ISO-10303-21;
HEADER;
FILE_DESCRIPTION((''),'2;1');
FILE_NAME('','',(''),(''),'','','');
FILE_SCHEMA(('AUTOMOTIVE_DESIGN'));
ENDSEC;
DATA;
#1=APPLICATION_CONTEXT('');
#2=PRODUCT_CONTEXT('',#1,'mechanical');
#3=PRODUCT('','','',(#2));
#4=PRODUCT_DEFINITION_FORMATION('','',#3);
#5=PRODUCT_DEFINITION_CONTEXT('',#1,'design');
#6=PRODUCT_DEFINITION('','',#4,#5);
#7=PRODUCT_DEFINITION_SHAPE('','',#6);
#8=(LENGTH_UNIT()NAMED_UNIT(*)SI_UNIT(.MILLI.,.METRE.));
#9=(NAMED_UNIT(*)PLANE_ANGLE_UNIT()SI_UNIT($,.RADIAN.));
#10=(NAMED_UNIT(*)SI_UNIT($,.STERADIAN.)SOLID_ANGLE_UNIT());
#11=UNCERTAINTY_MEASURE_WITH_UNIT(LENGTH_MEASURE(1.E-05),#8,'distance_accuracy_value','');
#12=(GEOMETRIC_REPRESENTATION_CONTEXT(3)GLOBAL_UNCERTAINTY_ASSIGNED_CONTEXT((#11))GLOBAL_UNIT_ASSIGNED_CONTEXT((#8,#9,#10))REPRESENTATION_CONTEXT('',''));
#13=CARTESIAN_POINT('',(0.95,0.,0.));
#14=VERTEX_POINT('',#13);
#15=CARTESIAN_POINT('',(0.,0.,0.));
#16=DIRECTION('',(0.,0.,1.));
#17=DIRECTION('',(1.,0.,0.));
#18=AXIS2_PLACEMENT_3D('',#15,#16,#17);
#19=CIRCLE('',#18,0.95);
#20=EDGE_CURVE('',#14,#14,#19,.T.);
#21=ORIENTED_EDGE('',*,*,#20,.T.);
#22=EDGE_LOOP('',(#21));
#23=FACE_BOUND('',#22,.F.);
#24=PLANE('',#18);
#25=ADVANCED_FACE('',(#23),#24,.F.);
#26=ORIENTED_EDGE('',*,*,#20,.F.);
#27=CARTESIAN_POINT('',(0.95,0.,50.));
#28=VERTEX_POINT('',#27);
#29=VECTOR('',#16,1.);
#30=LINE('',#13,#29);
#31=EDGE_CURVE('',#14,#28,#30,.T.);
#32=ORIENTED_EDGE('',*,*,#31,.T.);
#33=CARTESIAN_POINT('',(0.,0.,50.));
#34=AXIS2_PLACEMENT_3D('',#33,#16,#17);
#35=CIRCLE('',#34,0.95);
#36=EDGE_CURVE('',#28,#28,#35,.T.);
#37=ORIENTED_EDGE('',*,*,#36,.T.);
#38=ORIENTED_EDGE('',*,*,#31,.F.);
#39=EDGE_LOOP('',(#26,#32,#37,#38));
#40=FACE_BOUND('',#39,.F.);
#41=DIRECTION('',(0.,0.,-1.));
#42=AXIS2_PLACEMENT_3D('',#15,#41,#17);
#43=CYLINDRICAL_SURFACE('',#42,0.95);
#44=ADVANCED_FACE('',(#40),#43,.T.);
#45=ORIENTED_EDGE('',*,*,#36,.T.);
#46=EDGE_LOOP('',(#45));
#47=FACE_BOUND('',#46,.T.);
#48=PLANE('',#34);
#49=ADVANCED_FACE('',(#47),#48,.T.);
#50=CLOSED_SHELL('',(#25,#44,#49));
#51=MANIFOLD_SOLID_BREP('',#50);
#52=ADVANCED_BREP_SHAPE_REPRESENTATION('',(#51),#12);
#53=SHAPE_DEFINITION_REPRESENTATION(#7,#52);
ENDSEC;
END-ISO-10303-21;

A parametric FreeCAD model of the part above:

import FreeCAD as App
import Part
import Sketcher
from FreeCAD import Vector

doc = App.newDocument("Part")
body = doc.addObject("PartDesign::Body", "Body")

# Sketch on XY plane
sketch1 = doc.addObject("Sketcher::SketchObject", "Sketch")
body.addObject(sketch1)
sketch1.AttachmentSupport = (doc.XY_Plane, [""])
sketch1.MapMode = "FlatFace"
sketch1.addGeometry(Part.Circle(Vector(0, 0, 0), Vector(0, 0, 1), 0.95), False)
sketch1.addConstraint([
    Sketcher.Constraint("Coincident", 0, 3, -1, 1),
    Sketcher.Constraint("Diameter", 0, 1.9),
])
pad1 = doc.addObject("PartDesign::Pad", "Pad")
body.addObject(pad1)
pad1.Profile = sketch1
pad1.Length = 50

doc.recompute()
